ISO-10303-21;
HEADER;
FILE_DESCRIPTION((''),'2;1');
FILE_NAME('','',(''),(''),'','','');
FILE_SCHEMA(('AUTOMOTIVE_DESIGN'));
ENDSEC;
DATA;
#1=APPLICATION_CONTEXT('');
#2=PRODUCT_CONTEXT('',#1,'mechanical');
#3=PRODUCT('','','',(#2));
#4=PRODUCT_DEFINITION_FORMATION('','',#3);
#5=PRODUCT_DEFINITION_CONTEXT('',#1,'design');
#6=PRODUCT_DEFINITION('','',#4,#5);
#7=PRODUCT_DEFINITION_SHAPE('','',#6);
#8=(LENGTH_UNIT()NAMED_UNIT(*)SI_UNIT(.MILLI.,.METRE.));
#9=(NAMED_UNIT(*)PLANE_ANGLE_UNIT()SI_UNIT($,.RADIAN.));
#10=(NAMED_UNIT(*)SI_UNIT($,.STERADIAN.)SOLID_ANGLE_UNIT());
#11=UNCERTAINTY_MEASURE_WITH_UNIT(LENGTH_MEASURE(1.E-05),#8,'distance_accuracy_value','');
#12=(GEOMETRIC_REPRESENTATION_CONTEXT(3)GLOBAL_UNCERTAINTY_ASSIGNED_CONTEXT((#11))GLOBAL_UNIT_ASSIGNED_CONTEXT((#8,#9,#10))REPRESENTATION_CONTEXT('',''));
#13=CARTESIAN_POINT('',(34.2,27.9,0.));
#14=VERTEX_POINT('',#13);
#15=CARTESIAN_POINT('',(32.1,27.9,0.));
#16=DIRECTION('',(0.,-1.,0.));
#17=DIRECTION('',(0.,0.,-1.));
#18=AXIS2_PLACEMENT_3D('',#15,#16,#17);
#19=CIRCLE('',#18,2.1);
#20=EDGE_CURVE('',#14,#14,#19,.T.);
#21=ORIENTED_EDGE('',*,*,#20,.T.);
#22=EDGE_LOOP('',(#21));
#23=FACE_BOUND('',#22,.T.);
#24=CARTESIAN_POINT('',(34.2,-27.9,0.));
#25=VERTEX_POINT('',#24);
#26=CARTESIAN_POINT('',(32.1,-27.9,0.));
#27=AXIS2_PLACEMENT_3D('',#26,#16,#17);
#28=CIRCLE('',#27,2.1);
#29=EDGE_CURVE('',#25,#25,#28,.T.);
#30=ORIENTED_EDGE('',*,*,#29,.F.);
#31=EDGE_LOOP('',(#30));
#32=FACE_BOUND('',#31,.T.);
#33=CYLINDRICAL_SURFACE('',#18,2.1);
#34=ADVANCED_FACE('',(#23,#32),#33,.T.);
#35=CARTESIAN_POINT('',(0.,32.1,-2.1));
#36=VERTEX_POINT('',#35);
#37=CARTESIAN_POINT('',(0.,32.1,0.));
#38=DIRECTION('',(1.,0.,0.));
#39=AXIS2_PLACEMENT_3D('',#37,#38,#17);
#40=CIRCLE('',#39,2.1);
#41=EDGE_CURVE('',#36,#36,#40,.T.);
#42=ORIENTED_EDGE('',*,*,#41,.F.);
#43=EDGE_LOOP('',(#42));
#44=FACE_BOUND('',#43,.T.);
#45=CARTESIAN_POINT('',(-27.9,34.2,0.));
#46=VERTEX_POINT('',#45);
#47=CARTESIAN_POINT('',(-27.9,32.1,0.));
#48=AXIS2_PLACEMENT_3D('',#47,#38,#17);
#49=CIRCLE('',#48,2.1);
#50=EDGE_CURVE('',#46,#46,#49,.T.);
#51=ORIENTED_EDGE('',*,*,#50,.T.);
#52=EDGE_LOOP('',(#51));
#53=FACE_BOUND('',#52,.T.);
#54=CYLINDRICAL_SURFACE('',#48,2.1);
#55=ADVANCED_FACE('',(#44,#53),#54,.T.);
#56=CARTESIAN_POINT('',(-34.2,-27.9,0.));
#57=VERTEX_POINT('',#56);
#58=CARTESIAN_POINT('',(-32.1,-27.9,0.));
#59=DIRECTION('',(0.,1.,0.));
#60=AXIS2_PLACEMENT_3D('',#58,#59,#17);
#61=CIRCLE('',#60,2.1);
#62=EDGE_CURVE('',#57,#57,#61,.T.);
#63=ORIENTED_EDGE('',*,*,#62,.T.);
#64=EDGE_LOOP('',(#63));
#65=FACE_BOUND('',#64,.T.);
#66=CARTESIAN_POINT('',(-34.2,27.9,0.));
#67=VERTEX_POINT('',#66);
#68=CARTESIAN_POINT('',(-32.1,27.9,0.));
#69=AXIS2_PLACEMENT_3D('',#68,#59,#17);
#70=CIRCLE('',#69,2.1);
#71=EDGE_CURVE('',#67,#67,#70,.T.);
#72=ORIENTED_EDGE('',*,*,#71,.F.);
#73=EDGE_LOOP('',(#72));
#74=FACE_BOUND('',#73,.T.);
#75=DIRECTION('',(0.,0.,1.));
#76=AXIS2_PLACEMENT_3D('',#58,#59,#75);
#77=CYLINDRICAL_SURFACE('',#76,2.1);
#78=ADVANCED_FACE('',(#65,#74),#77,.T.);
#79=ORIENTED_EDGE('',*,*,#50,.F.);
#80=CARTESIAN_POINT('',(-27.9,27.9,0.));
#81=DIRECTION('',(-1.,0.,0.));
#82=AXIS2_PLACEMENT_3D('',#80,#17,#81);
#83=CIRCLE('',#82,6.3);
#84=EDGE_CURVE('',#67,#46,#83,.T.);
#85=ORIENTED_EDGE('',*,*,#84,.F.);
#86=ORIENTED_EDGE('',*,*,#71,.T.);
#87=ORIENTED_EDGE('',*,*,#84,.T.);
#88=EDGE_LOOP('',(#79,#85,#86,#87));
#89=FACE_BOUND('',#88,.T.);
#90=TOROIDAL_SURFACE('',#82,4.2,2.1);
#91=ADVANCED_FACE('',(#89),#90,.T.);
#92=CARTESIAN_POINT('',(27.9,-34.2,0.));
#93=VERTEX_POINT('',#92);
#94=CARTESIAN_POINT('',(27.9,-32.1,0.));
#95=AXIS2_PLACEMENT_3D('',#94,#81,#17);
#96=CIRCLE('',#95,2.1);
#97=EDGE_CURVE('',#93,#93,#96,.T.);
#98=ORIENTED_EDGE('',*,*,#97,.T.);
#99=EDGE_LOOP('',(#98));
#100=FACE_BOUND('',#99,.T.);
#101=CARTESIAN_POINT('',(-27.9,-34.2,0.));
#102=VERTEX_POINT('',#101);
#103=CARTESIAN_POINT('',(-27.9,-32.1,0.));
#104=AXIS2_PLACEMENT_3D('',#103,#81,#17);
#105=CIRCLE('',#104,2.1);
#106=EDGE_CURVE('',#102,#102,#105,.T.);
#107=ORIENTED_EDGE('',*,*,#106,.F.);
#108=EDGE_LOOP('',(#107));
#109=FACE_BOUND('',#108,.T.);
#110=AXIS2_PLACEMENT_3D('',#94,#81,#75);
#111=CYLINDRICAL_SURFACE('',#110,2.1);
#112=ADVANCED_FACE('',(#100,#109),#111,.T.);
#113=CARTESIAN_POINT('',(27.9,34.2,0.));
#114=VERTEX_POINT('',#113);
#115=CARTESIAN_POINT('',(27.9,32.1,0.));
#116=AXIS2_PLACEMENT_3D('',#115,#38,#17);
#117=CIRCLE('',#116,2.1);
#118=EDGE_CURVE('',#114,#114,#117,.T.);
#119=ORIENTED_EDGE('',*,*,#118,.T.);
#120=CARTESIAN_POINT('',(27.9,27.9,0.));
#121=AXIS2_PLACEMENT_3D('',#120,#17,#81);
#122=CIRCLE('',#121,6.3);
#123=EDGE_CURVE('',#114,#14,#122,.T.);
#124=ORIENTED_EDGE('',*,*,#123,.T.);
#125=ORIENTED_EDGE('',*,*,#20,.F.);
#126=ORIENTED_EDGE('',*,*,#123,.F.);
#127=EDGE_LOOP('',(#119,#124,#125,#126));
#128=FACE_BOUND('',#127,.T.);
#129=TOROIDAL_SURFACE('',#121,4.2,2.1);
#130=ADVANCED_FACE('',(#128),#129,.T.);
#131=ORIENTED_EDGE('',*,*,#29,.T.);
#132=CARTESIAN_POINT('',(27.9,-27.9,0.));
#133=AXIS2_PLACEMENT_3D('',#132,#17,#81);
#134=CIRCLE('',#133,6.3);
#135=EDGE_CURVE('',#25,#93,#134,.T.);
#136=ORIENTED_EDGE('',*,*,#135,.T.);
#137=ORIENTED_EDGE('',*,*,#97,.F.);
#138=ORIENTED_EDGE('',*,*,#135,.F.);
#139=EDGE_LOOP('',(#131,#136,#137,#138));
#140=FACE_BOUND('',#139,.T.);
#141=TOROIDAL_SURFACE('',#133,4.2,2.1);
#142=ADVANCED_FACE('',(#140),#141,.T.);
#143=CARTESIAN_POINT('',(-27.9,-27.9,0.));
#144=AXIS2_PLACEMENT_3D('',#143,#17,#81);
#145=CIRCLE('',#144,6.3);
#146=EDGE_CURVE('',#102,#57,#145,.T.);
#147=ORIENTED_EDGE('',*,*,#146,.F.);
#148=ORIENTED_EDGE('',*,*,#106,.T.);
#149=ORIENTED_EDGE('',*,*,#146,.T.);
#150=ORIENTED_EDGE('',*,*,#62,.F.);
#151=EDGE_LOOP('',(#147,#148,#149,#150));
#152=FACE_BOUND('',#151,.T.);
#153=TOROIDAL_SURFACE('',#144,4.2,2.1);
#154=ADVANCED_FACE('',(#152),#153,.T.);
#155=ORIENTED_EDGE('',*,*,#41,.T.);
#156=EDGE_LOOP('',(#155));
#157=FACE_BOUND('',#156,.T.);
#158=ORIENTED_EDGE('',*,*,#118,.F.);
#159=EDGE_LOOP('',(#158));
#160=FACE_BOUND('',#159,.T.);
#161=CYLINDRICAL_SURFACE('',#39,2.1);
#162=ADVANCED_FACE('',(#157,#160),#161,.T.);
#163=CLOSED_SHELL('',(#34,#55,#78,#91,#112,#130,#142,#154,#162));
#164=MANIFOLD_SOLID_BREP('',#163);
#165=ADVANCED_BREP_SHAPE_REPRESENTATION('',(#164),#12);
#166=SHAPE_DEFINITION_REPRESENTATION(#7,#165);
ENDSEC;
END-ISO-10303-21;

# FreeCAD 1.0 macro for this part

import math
import FreeCAD as App
import Part
import Sketcher
from FreeCAD import Vector

doc = App.newDocument("Part")
body = doc.addObject("PartDesign::Body", "Body")

# Sketch on YZ plane
sketch1 = doc.addObject("Sketcher::SketchObject", "Sketch")
body.addObject(sketch1)
sketch1.AttachmentSupport = (doc.YZ_Plane, [""])
sketch1.MapMode = "FlatFace"
sketch1.addGeometry(Part.Circle(Vector(32.1, 0, 0), Vector(0, 0, 1), 2.1), False)
sketch1.addConstraint([
    Sketcher.Constraint("PointOnObject", 0, 3, -1),
    Sketcher.Constraint("Diameter", 0, 4.2),
    Sketcher.Constraint("DistanceX", -1, 1, 0, 3, 32.1),
])

# Sketch on XY plane
sketch2 = doc.addObject("Sketcher::SketchObject", "Sketch001")
body.addObject(sketch2)
sketch2.AttachmentSupport = (doc.XY_Plane, [""])
sketch2.MapMode = "FlatFace"
sketch2.addGeometry([
    Part.LineSegment(Vector(27.9, 32.1, 0), Vector(-27.9, 32.1, 0)),  # 0
    Part.ArcOfCircle(Part.Circle(Vector(-27.9, 27.9, 0), Vector(0, 0, 1), 4.2), math.radians(90), math.radians(180)),  # 1
    Part.LineSegment(Vector(-32.1, 27.9, 0), Vector(-32.1, -27.9, 0)),  # 2
    Part.ArcOfCircle(Part.Circle(Vector(-27.9, -27.9, 0), Vector(0, 0, 1), 4.2), math.radians(180), math.radians(270)),  # 3
    Part.LineSegment(Vector(-27.9, -32.1, 0), Vector(27.9, -32.1, 0)),  # 4
    Part.ArcOfCircle(Part.Circle(Vector(27.9, -27.9, 0), Vector(0, 0, 1), 4.2), math.radians(-90), math.radians(0)),  # 5
    Part.LineSegment(Vector(32.1, -27.9, 0), Vector(32.1, 27.9, 0)),  # 6
    Part.ArcOfCircle(Part.Circle(Vector(27.9, 27.9, 0), Vector(0, 0, 1), 4.2), math.radians(0), math.radians(90)),  # 7
], False)
sketch2.addConstraint([
    Sketcher.Constraint("Tangent", 0, 2, 1, 1),
    Sketcher.Constraint("Tangent", 1, 2, 2, 1),
    Sketcher.Constraint("Tangent", 2, 2, 3, 1),
    Sketcher.Constraint("Tangent", 3, 2, 4, 1),
    Sketcher.Constraint("Tangent", 4, 2, 5, 1),
    Sketcher.Constraint("Tangent", 5, 2, 6, 1),
    Sketcher.Constraint("Tangent", 6, 2, 7, 1),
    Sketcher.Constraint("Tangent", 7, 2, 0, 1),
    Sketcher.Constraint("Horizontal", 0),
    Sketcher.Constraint("Vertical", 2),
    Sketcher.Constraint("Horizontal", 4),
    Sketcher.Constraint("Vertical", 6),
    Sketcher.Constraint("Equal", 1, 3),
    Sketcher.Constraint("Equal", 3, 5),
    Sketcher.Constraint("Equal", 5, 7),
    Sketcher.Constraint("Symmetric", 1, 3, 5, 3, -1, 1),
    Sketcher.Constraint("Equal", 4, 2),
    Sketcher.Constraint("Radius", 1, 4.2),
    Sketcher.Constraint("DistanceX", 0, 2, 0, 1, 55.8),
])
doc.recompute()

additivepipe = doc.addObject("PartDesign::AdditivePipe", "AdditivePipe")
body.addObject(additivepipe)
additivepipe.Profile = sketch1
additivepipe.Spine = (sketch2, ["Edge1", "Edge2", "Edge3", "Edge4", "Edge5", "Edge6", "Edge7", "Edge8"])

doc.recompute()
